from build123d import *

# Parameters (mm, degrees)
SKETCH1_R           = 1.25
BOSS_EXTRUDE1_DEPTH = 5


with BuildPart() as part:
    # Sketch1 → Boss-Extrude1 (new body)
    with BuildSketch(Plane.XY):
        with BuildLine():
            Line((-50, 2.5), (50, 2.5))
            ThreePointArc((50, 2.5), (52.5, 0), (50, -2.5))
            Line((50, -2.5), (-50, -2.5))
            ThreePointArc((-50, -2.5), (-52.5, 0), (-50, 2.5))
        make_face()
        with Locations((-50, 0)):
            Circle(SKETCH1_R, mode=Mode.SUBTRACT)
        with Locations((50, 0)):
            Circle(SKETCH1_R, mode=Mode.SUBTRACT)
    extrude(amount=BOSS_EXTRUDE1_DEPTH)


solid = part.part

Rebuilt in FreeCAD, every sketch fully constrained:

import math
import FreeCAD as App
import Part
import Sketcher

V = App.Vector

doc = App.newDocument("Part")
body = doc.addObject("PartDesign::Body", "Body")

sketch1 = body.newObject("Sketcher::SketchObject", "Sketch")
sketch1.AttachmentSupport = (doc.getObject("XY_Plane"), [""])
sketch1.MapMode = "FlatFace"
sketch1.addGeometry([
    Part.LineSegment(V(50, 2.5, 0), V(-50, 2.5, 0)),
    Part.ArcOfCircle(Part.Circle(V(-50, 0, 0), V(0, 0, 1), 2.5), math.radians(90), math.radians(270)),
    Part.LineSegment(V(-50, -2.5, 0), V(50, -2.5, 0)),
    Part.ArcOfCircle(Part.Circle(V(50, 0, 0), V(0, 0, 1), 2.5), math.radians(-90), math.radians(90)),
    Part.Circle(V(50, 0, 0), V(0, 0, 1), 1.25),
    Part.Circle(V(-50, 0, 0), V(0, 0, 1), 1.25),
], False)
sketch1.addConstraint([
    Sketcher.Constraint("Tangent", 0, 2, 1, 1),
    Sketcher.Constraint("Tangent", 1, 2, 2, 1),
    Sketcher.Constraint("Tangent", 2, 2, 3, 1),
    Sketcher.Constraint("Tangent", 3, 2, 0, 1),
    Sketcher.Constraint("Horizontal", 0),
    Sketcher.Constraint("Horizontal", 2),
    Sketcher.Constraint("Coincident", 4, 3, 3, 3),
    Sketcher.Constraint("Coincident", 5, 3, 1, 3),
    Sketcher.Constraint("Equal", 4, 5),
    Sketcher.Constraint("Symmetric", 1, 3, 3, 3, -1, 1),
    Sketcher.Constraint("Diameter", 4, 2.5),
    Sketcher.Constraint("Radius", 1, 2.5),
    Sketcher.Constraint("DistanceX", 0, 2, 0, 1, 100.0),
])
pad1 = body.newObject("PartDesign::Pad", "Pad")
pad1.Profile = sketch1
pad1.Length = 5

doc.recompute()
